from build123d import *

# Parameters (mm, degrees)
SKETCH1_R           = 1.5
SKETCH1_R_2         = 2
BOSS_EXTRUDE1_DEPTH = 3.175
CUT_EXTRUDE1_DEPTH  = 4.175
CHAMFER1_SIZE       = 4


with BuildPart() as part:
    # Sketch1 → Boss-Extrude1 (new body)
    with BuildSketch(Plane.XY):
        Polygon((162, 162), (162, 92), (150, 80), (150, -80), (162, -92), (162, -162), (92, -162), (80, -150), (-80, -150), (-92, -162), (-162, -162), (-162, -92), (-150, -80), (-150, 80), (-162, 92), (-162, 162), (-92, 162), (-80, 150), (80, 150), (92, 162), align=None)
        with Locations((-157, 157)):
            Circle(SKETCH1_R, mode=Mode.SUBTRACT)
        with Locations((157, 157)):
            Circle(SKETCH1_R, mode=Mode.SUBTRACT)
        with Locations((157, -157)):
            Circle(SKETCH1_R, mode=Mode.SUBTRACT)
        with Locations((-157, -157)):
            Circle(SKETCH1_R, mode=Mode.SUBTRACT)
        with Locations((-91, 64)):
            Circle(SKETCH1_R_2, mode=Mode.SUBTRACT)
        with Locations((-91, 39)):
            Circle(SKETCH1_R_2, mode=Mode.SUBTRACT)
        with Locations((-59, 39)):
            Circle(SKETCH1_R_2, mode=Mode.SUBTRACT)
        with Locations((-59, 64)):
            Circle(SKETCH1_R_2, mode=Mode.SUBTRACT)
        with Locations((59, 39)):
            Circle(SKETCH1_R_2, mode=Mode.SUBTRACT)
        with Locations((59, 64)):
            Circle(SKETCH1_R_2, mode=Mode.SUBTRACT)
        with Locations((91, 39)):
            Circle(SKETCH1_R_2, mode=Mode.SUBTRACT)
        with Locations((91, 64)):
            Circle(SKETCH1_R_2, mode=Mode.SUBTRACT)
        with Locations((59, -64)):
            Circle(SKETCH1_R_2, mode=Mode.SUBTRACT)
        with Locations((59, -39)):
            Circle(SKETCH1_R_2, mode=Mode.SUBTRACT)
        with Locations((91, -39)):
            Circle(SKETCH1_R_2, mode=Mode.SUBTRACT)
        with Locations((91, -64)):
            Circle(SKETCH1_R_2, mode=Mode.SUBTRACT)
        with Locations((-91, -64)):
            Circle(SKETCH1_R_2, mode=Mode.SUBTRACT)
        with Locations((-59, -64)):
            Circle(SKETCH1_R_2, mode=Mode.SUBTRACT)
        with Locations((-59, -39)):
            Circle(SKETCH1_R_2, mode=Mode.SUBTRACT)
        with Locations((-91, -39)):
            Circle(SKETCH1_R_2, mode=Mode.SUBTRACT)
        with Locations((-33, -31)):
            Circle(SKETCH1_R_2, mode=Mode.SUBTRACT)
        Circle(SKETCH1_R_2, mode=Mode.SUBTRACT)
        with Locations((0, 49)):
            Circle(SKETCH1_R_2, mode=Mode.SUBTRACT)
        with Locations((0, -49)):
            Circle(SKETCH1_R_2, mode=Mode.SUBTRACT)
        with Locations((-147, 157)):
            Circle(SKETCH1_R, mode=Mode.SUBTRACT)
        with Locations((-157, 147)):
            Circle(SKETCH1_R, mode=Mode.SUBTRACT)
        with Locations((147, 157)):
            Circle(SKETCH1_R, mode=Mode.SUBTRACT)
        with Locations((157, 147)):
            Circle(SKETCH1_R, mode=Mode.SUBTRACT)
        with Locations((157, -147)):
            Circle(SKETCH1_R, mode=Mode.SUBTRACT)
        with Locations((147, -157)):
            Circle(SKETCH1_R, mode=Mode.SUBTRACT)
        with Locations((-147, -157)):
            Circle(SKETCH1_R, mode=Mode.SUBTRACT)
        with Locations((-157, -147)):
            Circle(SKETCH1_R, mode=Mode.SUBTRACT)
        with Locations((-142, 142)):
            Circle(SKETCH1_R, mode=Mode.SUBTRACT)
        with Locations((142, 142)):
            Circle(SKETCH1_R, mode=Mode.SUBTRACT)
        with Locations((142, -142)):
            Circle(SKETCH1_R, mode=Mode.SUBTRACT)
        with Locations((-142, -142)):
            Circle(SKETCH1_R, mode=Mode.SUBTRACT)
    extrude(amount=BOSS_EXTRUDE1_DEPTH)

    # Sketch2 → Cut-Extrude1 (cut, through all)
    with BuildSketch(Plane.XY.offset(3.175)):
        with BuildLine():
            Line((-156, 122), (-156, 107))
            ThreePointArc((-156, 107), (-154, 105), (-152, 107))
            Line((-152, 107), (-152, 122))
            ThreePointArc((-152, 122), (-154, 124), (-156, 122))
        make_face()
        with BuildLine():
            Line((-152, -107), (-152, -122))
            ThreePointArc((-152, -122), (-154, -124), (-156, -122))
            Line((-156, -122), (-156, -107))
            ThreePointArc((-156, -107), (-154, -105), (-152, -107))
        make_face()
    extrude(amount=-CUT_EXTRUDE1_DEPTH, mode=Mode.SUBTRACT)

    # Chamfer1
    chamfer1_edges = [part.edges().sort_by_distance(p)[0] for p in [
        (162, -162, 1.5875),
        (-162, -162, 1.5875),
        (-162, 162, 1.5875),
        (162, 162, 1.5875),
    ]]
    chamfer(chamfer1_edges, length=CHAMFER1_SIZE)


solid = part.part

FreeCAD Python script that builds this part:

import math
import FreeCAD as App
import Part
import Sketcher


def edges_at(feature, points):
    """Names of the edges that pass closest to the given points."""
    edges = feature.Shape.Edges
    near = lambda p: min(range(len(edges)), key=lambda i: edges[i].distToShape(Part.Vertex(*p))[0])
    return sorted({f"Edge{near(p) + 1}" for p in points})

doc = App.newDocument("Part")
params = doc.addObject("Spreadsheet::Sheet", "Params")
for row, (alias, value) in enumerate([
    ("sketch1_diameter", "3 mm"),
    ("sketch1_diameter2", "4 mm"),
    ("sketch1_width", "70 mm"),
    ("sketch1_width2", "160 mm"),
    ("pad1_length", "3.175 mm"),
    ("sketch2_radius", "2 mm"),
    ("sketch2_height", "15 mm"),
    ("chamfer_size", "4 mm"),
], start=1):
    params.set(f"A{row}", alias)
    params.set(f"B{row}", "=" + value)
    params.setAlias(f"B{row}", alias)

body = doc.addObject("PartDesign::Body", "Body")

# Sketch on XY plane
sketch1 = doc.addObject("Sketcher::SketchObject", "Sketch")
body.addObject(sketch1)
sketch1.AttachmentSupport = (doc.XY_Plane, [""])
sketch1.MapMode = "FlatFace"
sketch1.addGeometry([
    Part.LineSegment(App.Vector(162, 92, 0), App.Vector(162, 162, 0)),  # 0
    Part.LineSegment(App.Vector(162, 162, 0), App.Vector(92, 162, 0)),  # 1
    Part.LineSegment(App.Vector(92, 162, 0), App.Vector(80, 150, 0)),  # 2
    Part.LineSegment(App.Vector(80, 150, 0), App.Vector(-80, 150, 0)),  # 3
    Part.LineSegment(App.Vector(-80, 150, 0), App.Vector(-92, 162, 0)),  # 4
    Part.LineSegment(App.Vector(-92, 162, 0), App.Vector(-162, 162, 0)),  # 5
    Part.LineSegment(App.Vector(-162, 162, 0), App.Vector(-162, 92, 0)),  # 6
    Part.LineSegment(App.Vector(-162, 92, 0), App.Vector(-150, 80, 0)),  # 7
    Part.LineSegment(App.Vector(-150, 80, 0), App.Vector(-150, -80, 0)),  # 8
    Part.LineSegment(App.Vector(-150, -80, 0), App.Vector(-162, -92, 0)),  # 9
    Part.LineSegment(App.Vector(-162, -92, 0), App.Vector(-162, -162, 0)),  # 10
    Part.LineSegment(App.Vector(-162, -162, 0), App.Vector(-92, -162, 0)),  # 11
    Part.LineSegment(App.Vector(-92, -162, 0), App.Vector(-80, -150, 0)),  # 12
    Part.LineSegment(App.Vector(-80, -150, 0), App.Vector(80, -150, 0)),  # 13
    Part.LineSegment(App.Vector(80, -150, 0), App.Vector(92, -162, 0)),  # 14
    Part.LineSegment(App.Vector(92, -162, 0), App.Vector(162, -162, 0)),  # 15
    Part.LineSegment(App.Vector(162, -162, 0), App.Vector(162, -92, 0)),  # 16
    Part.LineSegment(App.Vector(162, -92, 0), App.Vector(150, -80, 0)),  # 17
    Part.LineSegment(App.Vector(150, -80, 0), App.Vector(150, 80, 0)),  # 18
    Part.LineSegment(App.Vector(150, 80, 0), App.Vector(162, 92, 0)),  # 19
    Part.Circle(App.Vector(157, -157, 0), App.Vector(0, 0, 1), 1.5),  # 20
    Part.Circle(App.Vector(147, -157, 0), App.Vector(0, 0, 1), 1.5),  # 21
    Part.Circle(App.Vector(157, -147, 0), App.Vector(0, 0, 1), 1.5),  # 22
    Part.Circle(App.Vector(142, -142, 0), App.Vector(0, 0, 1), 1.5),  # 23
    Part.Circle(App.Vector(91, -64, 0), App.Vector(0, 0, 1), 2),  # 24
    Part.Circle(App.Vector(91, -39, 0), App.Vector(0, 0, 1), 2),  # 25
    Part.Circle(App.Vector(59, -64, 0), App.Vector(0, 0, 1), 2),  # 26
    Part.Circle(App.Vector(59, -39, 0), App.Vector(0, 0, 1), 2),  # 27
    Part.Circle(App.Vector(-147, -157, 0), App.Vector(0, 0, 1), 1.5),  # 28
    Part.Circle(App.Vector(-157, -157, 0), App.Vector(0, 0, 1), 1.5),  # 29
    Part.Circle(App.Vector(-142, -142, 0), App.Vector(0, 0, 1), 1.5),  # 30
    Part.Circle(App.Vector(-157, -147, 0), App.Vector(0, 0, 1), 1.5),  # 31
    Part.Circle(App.Vector(0, -49, 0), App.Vector(0, 0, 1), 2),  # 32
    Part.Circle(App.Vector(-59, -64, 0), App.Vector(0, 0, 1), 2),  # 33
    Part.Circle(App.Vector(-33, -31, 0), App.Vector(0, 0, 1), 2),  # 34
    Part.Circle(App.Vector(-59, -39, 0), App.Vector(0, 0, 1), 2),  # 35
    Part.Circle(App.Vector(-91, -64, 0), App.Vector(0, 0, 1), 2),  # 36
    Part.Circle(App.Vector(-91, -39, 0), App.Vector(0, 0, 1), 2),  # 37
    Part.Circle(App.Vector(91, 39, 0), App.Vector(0, 0, 1), 2),  # 38
    Part.Circle(App.Vector(91, 64, 0), App.Vector(0, 0, 1), 2),  # 39
    Part.Circle(App.Vector(59, 39, 0), App.Vector(0, 0, 1), 2),  # 40
    Part.Circle(App.Vector(59, 64, 0), App.Vector(0, 0, 1), 2),  # 41
    Part.Circle(App.Vector(157, 147, 0), App.Vector(0, 0, 1), 1.5),  # 42
    Part.Circle(App.Vector(142, 142, 0), App.Vector(0, 0, 1), 1.5),  # 43
    Part.Circle(App.Vector(157, 157, 0), App.Vector(0, 0, 1), 1.5),  # 44
    Part.Circle(App.Vector(147, 157, 0), App.Vector(0, 0, 1), 1.5),  # 45
    Part.Circle(App.Vector(0, 0, 0), App.Vector(0, 0, 1), 2),  # 46
    Part.Circle(App.Vector(-59, 39, 0), App.Vector(0, 0, 1), 2),  # 47
    Part.Circle(App.Vector(0, 49, 0), App.Vector(0, 0, 1), 2),  # 48
    Part.Circle(App.Vector(-59, 64, 0), App.Vector(0, 0, 1), 2),  # 49
    Part.Circle(App.Vector(-91, 39, 0), App.Vector(0, 0, 1), 2),  # 50
    Part.Circle(App.Vector(-91, 64, 0), App.Vector(0, 0, 1), 2),  # 51
    Part.Circle(App.Vector(-142, 142, 0), App.Vector(0, 0, 1), 1.5),  # 52
    Part.Circle(App.Vector(-157, 147, 0), App.Vector(0, 0, 1), 1.5),  # 53
    Part.Circle(App.Vector(-147, 157, 0), App.Vector(0, 0, 1), 1.5),  # 54
    Part.Circle(App.Vector(-157, 157, 0), App.Vector(0, 0, 1), 1.5),  # 55
], False)
sketch1.addConstraint([
    Sketcher.Constraint("Coincident", 0, 2, 1, 1),
    Sketcher.Constraint("Coincident", 1, 2, 2, 1),
    Sketcher.Constraint("Coincident", 2, 2, 3, 1),
    Sketcher.Constraint("Coincident", 3, 2, 4, 1),
    Sketcher.Constraint("Coincident", 4, 2, 5, 1),
    Sketcher.Constraint("Coincident", 5, 2, 6, 1),
    Sketcher.Constraint("Coincident", 6, 2, 7, 1),
    Sketcher.Constraint("Coincident", 7, 2, 8, 1),
    Sketcher.Constraint("Coincident", 8, 2, 9, 1),
    Sketcher.Constraint("Coincident", 9, 2, 10, 1),
    Sketcher.Constraint("Coincident", 10, 2, 11, 1),
    Sketcher.Constraint("Coincident", 11, 2, 12, 1),
    Sketcher.Constraint("Coincident", 12, 2, 13, 1),
    Sketcher.Constraint("Coincident", 13, 2, 14, 1),
    Sketcher.Constraint("Coincident", 14, 2, 15, 1),
    Sketcher.Constraint("Coincident", 15, 2, 16, 1),
    Sketcher.Constraint("Coincident", 16, 2, 17, 1),
    Sketcher.Constraint("Coincident", 17, 2, 18, 1),
    Sketcher.Constraint("Coincident", 18, 2, 19, 1),
    Sketcher.Constraint("Coincident", 19, 2, 0, 1),
    Sketcher.Constraint("Vertical", 0),
    Sketcher.Constraint("Horizontal", 1),
    Sketcher.Constraint("Horizontal", 3),
    Sketcher.Constraint("Horizontal", 5),
    Sketcher.Constraint("Vertical", 6),
    Sketcher.Constraint("Vertical", 8),
    Sketcher.Constraint("Vertical", 10),
    Sketcher.Constraint("Horizontal", 11),
    Sketcher.Constraint("Horizontal", 13),
    Sketcher.Constraint("Horizontal", 15),
    Sketcher.Constraint("Vertical", 16),
    Sketcher.Constraint("Vertical", 18),
    Sketcher.Constraint("Coincident", 46, 3, -1, 1),
    Sketcher.Constraint("Equal", 20, 21),
    Sketcher.Constraint("Equal", 21, 22),
    Sketcher.Constraint("Equal", 22, 23),
    Sketcher.Constraint("Equal", 24, 25),
    Sketcher.Constraint("Equal", 25, 26),
    Sketcher.Constraint("Equal", 26, 27),
    Sketcher.Constraint("Equal", 23, 28),
    Sketcher.Constraint("Equal", 28, 29),
    Sketcher.Constraint("Equal", 29, 30),
    Sketcher.Constraint("Equal", 30, 31),
    Sketcher.Constraint("Equal", 27, 32),
    Sketcher.Constraint("Equal", 32, 33),
    Sketcher.Constraint("Equal", 33, 34),
    Sketcher.Constraint("Equal", 34, 35),
    Sketcher.Constraint("Equal", 35, 36),
    Sketcher.Constraint("Equal", 36, 37),
    Sketcher.Constraint("Equal", 37, 38),
    Sketcher.Constraint("Equal", 38, 39),
    Sketcher.Constraint("Equal", 39, 40),
    Sketcher.Constraint("Equal", 40, 41),
    Sketcher.Constraint("Equal", 31, 42),
    Sketcher.Constraint("Equal", 42, 43),
    Sketcher.Constraint("Equal", 43, 44),
    Sketcher.Constraint("Equal", 44, 45),
    Sketcher.Constraint("Equal", 41, 46),
    Sketcher.Constraint("Equal", 46, 47),
    Sketcher.Constraint("Equal", 47, 48),
    Sketcher.Constraint("Equal", 48, 49),
    Sketcher.Constraint("Equal", 49, 50),
    Sketcher.Constraint("Equal", 50, 51),
    Sketcher.Constraint("Equal", 45, 52),
    Sketcher.Constraint("Equal", 52, 53),
    Sketcher.Constraint("Equal", 53, 54),
    Sketcher.Constraint("Equal", 54, 55),
    Sketcher.Constraint("Symmetric", 37, 3, 38, 3, -1, 1),
    Sketcher.Constraint("Symmetric", 36, 3, 39, 3, -1, 1),
    Sketcher.Constraint("Symmetric", 35, 3, 40, 3, -1, 1),
    Sketcher.Constraint("Symmetric", 33, 3, 41, 3, -1, 1),
    Sketcher.Constraint("Symmetric", 31, 3, 42, 3, -1, 1),
    Sketcher.Constraint("Symmetric", 30, 3, 43, 3, -1, 1),
    Sketcher.Constraint("Symmetric", 29, 3, 44, 3, -1, 1),
    Sketcher.Constraint("Symmetric", 28, 3, 45, 3, -1, 1),
    Sketcher.Constraint("Symmetric", 27, 3, 47, 3, -1, 1),
    Sketcher.Constraint("Symmetric", 32, 3, 48, 3, -1, 1),
    Sketcher.Constraint("Symmetric", 26, 3, 49, 3, -1, 1),
    Sketcher.Constraint("Symmetric", 25, 3, 50, 3, -1, 1),
    Sketcher.Constraint("Symmetric", 24, 3, 51, 3, -1, 1),
    Sketcher.Constraint("Symmetric", 23, 3, 52, 3, -1, 1),
    Sketcher.Constraint("Symmetric", 22, 3, 53, 3, -1, 1),
    Sketcher.Constraint("Symmetric", 21, 3, 54, 3, -1, 1),
    Sketcher.Constraint("Symmetric", 20, 3, 55, 3, -1, 1),
    Sketcher.Constraint("Symmetric", 0, 2, 10, 2, -1, 1),
    Sketcher.Constraint("Symmetric", 2, 2, 12, 2, -1, 1),
    Sketcher.Constraint("Symmetric", 4, 2, 14, 2, -1, 1),
    Sketcher.Constraint("Symmetric", 6, 2, 16, 2, -1, 1),
    Sketcher.Constraint("Symmetric", 7, 2, 17, 2, -1, 1),
    Sketcher.Constraint("Symmetric", 21, 3, 28, 3, -2),
    Sketcher.Constraint("Symmetric", 20, 3, 29, 3, -2),
    Sketcher.Constraint("Symmetric", 23, 3, 30, 3, -2),
    Sketcher.Constraint("Symmetric", 22, 3, 31, 3, -2),
    Sketcher.Constraint("Symmetric", 26, 3, 33, 3, -2),
    Sketcher.Constraint("Symmetric", 27, 3, 35, 3, -2),
    Sketcher.Constraint("Symmetric", 24, 3, 36, 3, -2),
    Sketcher.Constraint("Symmetric", 25, 3, 37, 3, -2),
    Sketcher.Constraint("Symmetric", 1, 2, 4, 2, -2),
    Sketcher.Constraint("Symmetric", 9, 2, 16, 2, -2),
    Sketcher.Constraint("PointOnObject", 32, 3, -2),
    Sketcher.Constraint("Perpendicular", 2, 4),
    Sketcher.Constraint("Parallel", 4, 7),
    Sketcher.Constraint("Perpendicular", 7, 9),
    Sketcher.Constraint("Parallel", 9, 12),
    Sketcher.Constraint("Perpendicular", 12, 14),
    Sketcher.Constraint("Perpendicular", 17, 19),
    Sketcher.Constraint("Horizontal", 20, 3, 21, 3),
    Sketcher.Constraint("Horizontal", 24, 3, 26, 3),
    Sketcher.Constraint("Horizontal", 25, 3, 27, 3),
    Sketcher.Constraint("Horizontal", 8, 2, 17, 2),
    Sketcher.Constraint("Horizontal", 7, 2, 18, 2),
    Sketcher.Constraint("Vertical", 20, 3, 22, 3),
    Sketcher.Constraint("Vertical", 24, 3, 25, 3),
    Sketcher.Constraint("Vertical", 26, 3, 27, 3),
    Sketcher.Constraint("Equal", 15, 0),
    Sketcher.Constraint("Equal", 13, 8),
    Sketcher.Constraint("Equal", 4, 7),
    Sketcher.Constraint("Diameter", 20, 3.0),
    Sketcher.Constraint("Diameter", 24, 4.0),
    Sketcher.Constraint("DistanceX", 1, 2, 1, 1, 70.0),
    Sketcher.Constraint("DistanceX", 3, 2, 3, 1, 160.0),
    Sketcher.Constraint("DistanceX", -1, 1, 20, 3, 157.0),
    Sketcher.Constraint("DistanceY", 20, 3, -1, 1, 157.0),
    Sketcher.Constraint("DistanceX", -1, 1, 21, 3, 147.0),
    Sketcher.Constraint("DistanceY", 22, 3, -1, 1, 147.0),
    Sketcher.Constraint("DistanceX", -1, 1, 23, 3, 142.0),
    Sketcher.Constraint("DistanceY", 23, 3, -1, 1, 142.0),
    Sketcher.Constraint("DistanceX", -1, 1, 24, 3, 91.0),
    Sketcher.Constraint("DistanceY", 24, 3, -1, 1, 64.0),
    Sketcher.Constraint("DistanceY", 25, 3, -1, 1, 39.0),
    Sketcher.Constraint("DistanceX", -1, 1, 26, 3, 59.0),
    Sketcher.Constraint("DistanceY", 32, 3, -1, 1, 49.0),
    Sketcher.Constraint("DistanceX", 34, 3, -1, 1, 33.0),
    Sketcher.Constraint("DistanceY", 34, 3, -1, 1, 31.0),
    Sketcher.Constraint("DistanceX", -1, 1, 0, 2, 162.0),
])
sketch1.setExpression("Constraints[117]", "Params.sketch1_diameter")
sketch1.setExpression("Constraints[118]", "Params.sketch1_diameter2")
sketch1.setExpression("Constraints[119]", "Params.sketch1_width")
sketch1.setExpression("Constraints[120]", "Params.sketch1_width2")
pad1 = doc.addObject("PartDesign::Pad", "Pad")
body.addObject(pad1)
pad1.Profile = sketch1
pad1.setExpression("Length", "Params.pad1_length")

# Sketch on XY plane
sketch2 = doc.addObject("Sketcher::SketchObject", "Sketch001")
body.addObject(sketch2)
sketch2.AttachmentSupport = (doc.XY_Plane, [""])
sketch2.MapMode = "FlatFace"
sketch2.AttachmentOffset = App.Placement(App.Vector(0, 0, 3.175), App.Rotation())
sketch2.addGeometry([
    Part.LineSegment(App.Vector(-156, 122, 0), App.Vector(-156, 107, 0)),  # 0
    Part.ArcOfCircle(Part.Circle(App.Vector(-154, 107, 0), App.Vector(0, 0, 1), 2), math.radians(180), math.radians(360)),  # 1
    Part.LineSegment(App.Vector(-152, 107, 0), App.Vector(-152, 122, 0)),  # 2
    Part.ArcOfCircle(Part.Circle(App.Vector(-154, 122, 0), App.Vector(0, 0, 1), 2), math.radians(0), math.radians(180)),  # 3
    Part.LineSegment(App.Vector(-152, -122, 0), App.Vector(-152, -107, 0)),  # 4
    Part.ArcOfCircle(Part.Circle(App.Vector(-154, -107, 0), App.Vector(0, 0, 1), 2), math.radians(0), math.radians(180)),  # 5
    Part.LineSegment(App.Vector(-156, -107, 0), App.Vector(-156, -122, 0)),  # 6
    Part.ArcOfCircle(Part.Circle(App.Vector(-154, -122, 0), App.Vector(0, 0, 1), 2), math.radians(180), math.radians(360)),  # 7
], False)
sketch2.addConstraint([
    Sketcher.Constraint("Tangent", 0, 2, 1, 1),
    Sketcher.Constraint("Tangent", 1, 2, 2, 1),
    Sketcher.Constraint("Tangent", 2, 2, 3, 1),
    Sketcher.Constraint("Tangent", 3, 2, 0, 1),
    Sketcher.Constraint("Tangent", 4, 2, 5, 1),
    Sketcher.Constraint("Tangent", 5, 2, 6, 1),
    Sketcher.Constraint("Tangent", 6, 2, 7, 1),
    Sketcher.Constraint("Tangent", 7, 2, 4, 1),
    Sketcher.Constraint("Vertical", 0),
    Sketcher.Constraint("Vertical", 2),
    Sketcher.Constraint("Vertical", 4),
    Sketcher.Constraint("Vertical", 6),
    Sketcher.Constraint("Equal", 3, 5),
    Sketcher.Constraint("Symmetric", 1, 3, 5, 3, -1),
    Sketcher.Constraint("Equal", 2, 4),
    Sketcher.Constraint("Radius", 1, 2.0),
    Sketcher.Constraint("DistanceY", 0, 2, 0, 1, 15.0),
    Sketcher.Constraint("DistanceX", 1, 3, -1, 1, 154.0),
    Sketcher.Constraint("DistanceY", -1, 1, 1, 3, 107.0),
])
sketch2.setExpression("Constraints[15]", "Params.sketch2_radius")
sketch2.setExpression("Constraints[16]", "Params.sketch2_height")
pocket1 = doc.addObject("PartDesign::Pocket", "Pocket")
body.addObject(pocket1)
pocket1.Profile = sketch2
pocket1.Type = "ThroughAll"
doc.recompute()

chamfer = doc.addObject("PartDesign::Chamfer", "Chamfer")
body.addObject(chamfer)
chamfer.Base = (pocket1, edges_at(pocket1, [
    (162, -162, 1.587),
    (-162, -162, 1.587),
    (-162, 162, 1.587),
    (162, 162, 1.587),
]))
chamfer.setExpression("Size", "Params.chamfer_size")

doc.recompute()
